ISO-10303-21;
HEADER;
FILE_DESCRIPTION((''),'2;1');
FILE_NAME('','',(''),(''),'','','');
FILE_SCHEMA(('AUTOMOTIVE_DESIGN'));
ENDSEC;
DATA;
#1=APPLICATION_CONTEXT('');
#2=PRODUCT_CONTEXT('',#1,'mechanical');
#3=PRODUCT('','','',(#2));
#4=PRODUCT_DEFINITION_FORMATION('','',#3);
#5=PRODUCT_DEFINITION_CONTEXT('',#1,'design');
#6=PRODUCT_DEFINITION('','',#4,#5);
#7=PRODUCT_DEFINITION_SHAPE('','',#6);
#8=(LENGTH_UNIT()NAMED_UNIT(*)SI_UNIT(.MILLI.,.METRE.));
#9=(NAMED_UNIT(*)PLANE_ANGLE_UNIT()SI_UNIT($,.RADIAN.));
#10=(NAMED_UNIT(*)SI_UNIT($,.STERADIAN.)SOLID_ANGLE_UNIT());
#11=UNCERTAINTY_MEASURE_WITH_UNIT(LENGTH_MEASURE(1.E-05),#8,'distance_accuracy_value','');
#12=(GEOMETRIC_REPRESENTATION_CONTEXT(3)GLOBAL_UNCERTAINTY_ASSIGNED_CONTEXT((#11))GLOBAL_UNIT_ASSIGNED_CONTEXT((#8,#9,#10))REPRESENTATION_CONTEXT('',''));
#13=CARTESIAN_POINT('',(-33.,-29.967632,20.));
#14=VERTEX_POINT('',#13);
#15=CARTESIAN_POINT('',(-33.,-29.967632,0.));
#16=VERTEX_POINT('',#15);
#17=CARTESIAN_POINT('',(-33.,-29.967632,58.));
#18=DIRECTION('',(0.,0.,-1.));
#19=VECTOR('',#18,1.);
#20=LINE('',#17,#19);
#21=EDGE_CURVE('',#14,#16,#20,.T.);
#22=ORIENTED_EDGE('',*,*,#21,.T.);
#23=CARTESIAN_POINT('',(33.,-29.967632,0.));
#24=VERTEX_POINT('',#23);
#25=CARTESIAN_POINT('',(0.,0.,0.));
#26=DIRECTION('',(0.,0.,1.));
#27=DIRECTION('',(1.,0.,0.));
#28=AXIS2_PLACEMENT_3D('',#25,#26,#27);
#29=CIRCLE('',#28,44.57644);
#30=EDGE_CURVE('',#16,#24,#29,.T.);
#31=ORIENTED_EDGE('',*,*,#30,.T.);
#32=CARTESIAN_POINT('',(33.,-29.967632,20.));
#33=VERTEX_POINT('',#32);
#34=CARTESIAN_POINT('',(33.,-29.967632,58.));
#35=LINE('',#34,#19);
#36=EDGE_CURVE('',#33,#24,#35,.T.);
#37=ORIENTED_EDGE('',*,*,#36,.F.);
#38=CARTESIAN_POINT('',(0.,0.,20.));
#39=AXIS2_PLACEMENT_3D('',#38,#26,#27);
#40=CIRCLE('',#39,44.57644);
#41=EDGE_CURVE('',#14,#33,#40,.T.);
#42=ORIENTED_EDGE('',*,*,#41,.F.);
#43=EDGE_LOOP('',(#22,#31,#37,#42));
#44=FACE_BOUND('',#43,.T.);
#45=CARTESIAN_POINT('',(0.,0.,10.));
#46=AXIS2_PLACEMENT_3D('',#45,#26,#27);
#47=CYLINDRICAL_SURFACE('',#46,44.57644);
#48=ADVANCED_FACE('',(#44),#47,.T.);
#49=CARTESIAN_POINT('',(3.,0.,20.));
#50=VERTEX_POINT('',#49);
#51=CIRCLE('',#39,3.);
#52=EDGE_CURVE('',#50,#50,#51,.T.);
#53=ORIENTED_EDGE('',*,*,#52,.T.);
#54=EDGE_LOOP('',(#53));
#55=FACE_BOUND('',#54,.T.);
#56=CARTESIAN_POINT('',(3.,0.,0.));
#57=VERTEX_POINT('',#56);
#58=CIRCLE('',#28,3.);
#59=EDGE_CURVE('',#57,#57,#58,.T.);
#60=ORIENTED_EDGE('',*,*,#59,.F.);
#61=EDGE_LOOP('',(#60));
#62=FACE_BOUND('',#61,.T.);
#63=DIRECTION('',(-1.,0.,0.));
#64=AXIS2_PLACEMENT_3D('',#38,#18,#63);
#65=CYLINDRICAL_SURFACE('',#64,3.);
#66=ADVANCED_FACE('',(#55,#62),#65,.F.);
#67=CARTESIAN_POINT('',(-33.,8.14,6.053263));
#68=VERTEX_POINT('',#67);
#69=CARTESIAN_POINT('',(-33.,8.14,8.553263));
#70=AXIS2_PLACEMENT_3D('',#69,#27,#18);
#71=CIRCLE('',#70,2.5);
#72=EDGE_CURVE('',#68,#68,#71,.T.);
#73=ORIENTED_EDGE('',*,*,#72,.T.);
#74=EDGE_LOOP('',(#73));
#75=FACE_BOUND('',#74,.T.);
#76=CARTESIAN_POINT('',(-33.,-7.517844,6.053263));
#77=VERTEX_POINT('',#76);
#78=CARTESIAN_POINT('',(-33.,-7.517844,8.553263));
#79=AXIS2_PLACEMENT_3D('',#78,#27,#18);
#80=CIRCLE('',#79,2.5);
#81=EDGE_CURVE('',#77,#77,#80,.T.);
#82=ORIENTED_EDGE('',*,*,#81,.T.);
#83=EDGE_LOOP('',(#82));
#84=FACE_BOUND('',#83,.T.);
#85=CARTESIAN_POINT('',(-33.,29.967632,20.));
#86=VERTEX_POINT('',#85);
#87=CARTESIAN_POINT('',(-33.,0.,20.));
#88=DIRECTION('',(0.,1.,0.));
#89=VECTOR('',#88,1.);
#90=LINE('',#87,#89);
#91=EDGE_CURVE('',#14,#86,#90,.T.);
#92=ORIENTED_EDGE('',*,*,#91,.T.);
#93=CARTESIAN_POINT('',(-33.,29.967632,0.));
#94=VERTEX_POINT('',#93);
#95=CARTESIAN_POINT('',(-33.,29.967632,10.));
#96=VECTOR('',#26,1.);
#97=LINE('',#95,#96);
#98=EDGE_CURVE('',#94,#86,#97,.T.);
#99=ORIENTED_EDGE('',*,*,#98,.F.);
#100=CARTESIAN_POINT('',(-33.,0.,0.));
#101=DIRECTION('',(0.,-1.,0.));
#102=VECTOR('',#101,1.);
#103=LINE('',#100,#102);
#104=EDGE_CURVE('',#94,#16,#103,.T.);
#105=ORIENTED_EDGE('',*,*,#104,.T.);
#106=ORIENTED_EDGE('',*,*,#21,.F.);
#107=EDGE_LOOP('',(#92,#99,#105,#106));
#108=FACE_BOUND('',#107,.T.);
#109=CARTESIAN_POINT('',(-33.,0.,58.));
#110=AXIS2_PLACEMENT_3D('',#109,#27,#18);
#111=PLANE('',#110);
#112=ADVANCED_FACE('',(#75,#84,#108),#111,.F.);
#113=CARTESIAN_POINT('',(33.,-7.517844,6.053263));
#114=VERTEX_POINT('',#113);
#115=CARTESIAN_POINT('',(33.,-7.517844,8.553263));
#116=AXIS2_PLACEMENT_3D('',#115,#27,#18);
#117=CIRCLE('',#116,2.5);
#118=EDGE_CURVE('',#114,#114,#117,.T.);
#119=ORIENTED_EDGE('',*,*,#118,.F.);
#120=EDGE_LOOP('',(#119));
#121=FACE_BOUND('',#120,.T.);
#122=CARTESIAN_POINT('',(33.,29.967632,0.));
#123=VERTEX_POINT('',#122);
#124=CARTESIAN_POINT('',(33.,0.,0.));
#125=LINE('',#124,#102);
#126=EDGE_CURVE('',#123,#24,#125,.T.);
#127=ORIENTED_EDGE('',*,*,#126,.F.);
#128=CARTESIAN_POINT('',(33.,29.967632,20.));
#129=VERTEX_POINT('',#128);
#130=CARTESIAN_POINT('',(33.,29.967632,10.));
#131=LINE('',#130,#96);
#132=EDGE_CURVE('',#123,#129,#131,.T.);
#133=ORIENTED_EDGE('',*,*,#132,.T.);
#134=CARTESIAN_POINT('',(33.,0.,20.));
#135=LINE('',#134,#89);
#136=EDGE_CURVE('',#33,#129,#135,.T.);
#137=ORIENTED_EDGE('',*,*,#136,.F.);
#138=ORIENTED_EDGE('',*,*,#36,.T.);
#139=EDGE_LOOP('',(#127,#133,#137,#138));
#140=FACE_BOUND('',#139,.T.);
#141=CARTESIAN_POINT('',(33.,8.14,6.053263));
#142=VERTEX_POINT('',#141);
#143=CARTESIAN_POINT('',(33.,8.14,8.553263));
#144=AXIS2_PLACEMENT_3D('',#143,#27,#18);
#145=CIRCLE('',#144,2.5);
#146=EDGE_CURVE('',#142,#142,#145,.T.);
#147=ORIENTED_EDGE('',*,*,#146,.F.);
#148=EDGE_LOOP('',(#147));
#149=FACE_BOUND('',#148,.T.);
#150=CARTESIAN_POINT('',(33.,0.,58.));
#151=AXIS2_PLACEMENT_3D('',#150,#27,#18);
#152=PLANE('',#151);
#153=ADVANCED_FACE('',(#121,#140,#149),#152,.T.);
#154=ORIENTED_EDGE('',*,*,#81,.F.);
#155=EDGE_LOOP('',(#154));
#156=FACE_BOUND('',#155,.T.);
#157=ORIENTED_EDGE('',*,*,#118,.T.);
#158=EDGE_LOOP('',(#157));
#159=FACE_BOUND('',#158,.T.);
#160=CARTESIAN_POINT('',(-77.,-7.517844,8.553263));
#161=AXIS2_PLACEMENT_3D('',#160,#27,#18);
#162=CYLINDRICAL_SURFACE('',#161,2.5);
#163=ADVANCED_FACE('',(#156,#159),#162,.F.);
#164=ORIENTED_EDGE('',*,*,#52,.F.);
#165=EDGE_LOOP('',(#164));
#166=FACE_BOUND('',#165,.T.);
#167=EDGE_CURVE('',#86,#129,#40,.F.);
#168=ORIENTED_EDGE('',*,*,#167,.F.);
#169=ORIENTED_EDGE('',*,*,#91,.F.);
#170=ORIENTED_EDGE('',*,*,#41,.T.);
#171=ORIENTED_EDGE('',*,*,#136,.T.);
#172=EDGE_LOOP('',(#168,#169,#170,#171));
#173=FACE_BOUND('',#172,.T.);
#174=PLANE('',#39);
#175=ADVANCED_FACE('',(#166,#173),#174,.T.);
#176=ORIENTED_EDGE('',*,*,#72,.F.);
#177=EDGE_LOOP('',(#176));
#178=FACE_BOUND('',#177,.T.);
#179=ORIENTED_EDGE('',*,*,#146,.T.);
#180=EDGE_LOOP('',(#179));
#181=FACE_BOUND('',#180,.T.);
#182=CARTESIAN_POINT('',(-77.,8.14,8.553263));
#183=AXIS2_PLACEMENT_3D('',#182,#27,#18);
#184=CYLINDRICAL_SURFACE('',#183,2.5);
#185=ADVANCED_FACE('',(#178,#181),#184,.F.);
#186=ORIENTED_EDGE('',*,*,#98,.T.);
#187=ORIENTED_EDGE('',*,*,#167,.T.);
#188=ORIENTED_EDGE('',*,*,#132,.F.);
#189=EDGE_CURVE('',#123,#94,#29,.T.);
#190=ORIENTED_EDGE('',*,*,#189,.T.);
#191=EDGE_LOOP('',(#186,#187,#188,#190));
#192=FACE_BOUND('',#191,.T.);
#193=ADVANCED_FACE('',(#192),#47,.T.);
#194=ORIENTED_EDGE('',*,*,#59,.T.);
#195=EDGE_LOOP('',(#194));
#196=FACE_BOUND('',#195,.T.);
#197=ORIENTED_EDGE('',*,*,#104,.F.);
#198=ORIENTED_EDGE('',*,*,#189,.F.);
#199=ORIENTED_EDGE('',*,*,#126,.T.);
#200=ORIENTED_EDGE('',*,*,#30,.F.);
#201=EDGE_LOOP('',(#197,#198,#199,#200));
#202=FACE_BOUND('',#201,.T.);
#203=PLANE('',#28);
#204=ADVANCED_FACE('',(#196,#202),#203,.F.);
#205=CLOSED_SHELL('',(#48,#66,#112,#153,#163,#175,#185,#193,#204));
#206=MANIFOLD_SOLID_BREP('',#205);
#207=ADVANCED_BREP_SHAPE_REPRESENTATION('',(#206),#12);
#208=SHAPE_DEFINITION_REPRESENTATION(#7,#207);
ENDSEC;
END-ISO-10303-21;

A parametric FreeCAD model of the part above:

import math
import FreeCAD as App
import Part
import Sketcher
from FreeCAD import Vector
Q = App.Units.Quantity

doc = App.newDocument("Part")
body = doc.addObject("PartDesign::Body", "Body")

# Sketch on XY plane
sketch1 = body.newObject("Sketcher::SketchObject", "Sketch")
sketch1.AttachmentSupport = (doc.getObject("XY_Plane"), [""])
sketch1.MapMode = "FlatFace"
sketch1.addGeometry(Part.Circle(Vector(0, 0, 0), Vector(0, 0, 1), 55), False)
sketch1.addGeometry(Part.Circle(Vector(0, 0, 0), Vector(0, 0, 1), 3), False)
sketch1.addConstraint(Sketcher.Constraint("Coincident", 0, 3, -1, 1))
sketch1.addConstraint(Sketcher.Constraint("Coincident", 1, 3, -1, 1))
sketch1.addConstraint(Sketcher.Constraint("Diameter", 0, Q("110 mm")))
sketch1.addConstraint(Sketcher.Constraint("Diameter", 1, Q("6 mm")))
pad1 = body.newObject("PartDesign::Pad", "Pad")
pad1.Profile = sketch1
pad1.Length = 20

# Sketch on XY plane
sketch2 = body.newObject("Sketcher::SketchObject", "Sketch001")
sketch2.AttachmentSupport = (doc.getObject("XY_Plane"), [""])
sketch2.MapMode = "FlatFace"
sketch2.AttachmentOffset = App.Placement(Vector(0, 0, 20), App.Rotation())
sketch2.addGeometry(Part.Circle(Vector(0, 0, 0), Vector(0, 0, 1), 52), False)
sketch2.addGeometry(Part.LineSegment(Vector(-41, -17, 0), Vector(-41, 17, 0)), False)
sketch2.addGeometry(Part.ArcOfCircle(Part.Circle(Vector(0, 0, 0), Vector(0, 0, 1), 45), math.radians(22), math.radians(158)), False)
sketch2.addGeometry(Part.LineSegment(Vector(41, 17, 0), Vector(41, -17, 0)), False)
sketch2.addGeometry(Part.ArcOfCircle(Part.Circle(Vector(0, 0, 0), Vector(0, 0, 1), 45), math.radians(-158), math.radians(-22)), False)
sketch2.addConstraint(Sketcher.Constraint("Coincident", 1, 2, 2, 2))
sketch2.addConstraint(Sketcher.Constraint("Coincident", 2, 1, 3, 1))
sketch2.addConstraint(Sketcher.Constraint("Coincident", 3, 2, 4, 2))
sketch2.addConstraint(Sketcher.Constraint("Coincident", 4, 1, 1, 1))
sketch2.addConstraint(Sketcher.Constraint("Vertical", 1))
sketch2.addConstraint(Sketcher.Constraint("Vertical", 3))
sketch2.addConstraint(Sketcher.Constraint("Coincident", 0, 3, -1, 1))
sketch2.addConstraint(Sketcher.Constraint("Coincident", 2, 3, -1, 1))
sketch2.addConstraint(Sketcher.Constraint("Coincident", 4, 3, -1, 1))
sketch2.addConstraint(Sketcher.Constraint("Equal", 2, 4))
sketch2.addConstraint(Sketcher.Constraint("Horizontal", 1, 2, 2, 1))
sketch2.addConstraint(Sketcher.Constraint("Diameter", 0, Q("104 mm")))
sketch2.addConstraint(Sketcher.Constraint("Radius", 2, Q("44.57644 mm")))
sketch2.addConstraint(Sketcher.Constraint("DistanceX", 1, 2, 2, 1, Q("82.7239 mm")))
pocket1 = body.newObject("PartDesign::Pocket", "Pocket")
pocket1.Profile = sketch2
pocket1.Length = 10

# Sketch on XY plane
sketch3 = body.newObject("Sketcher::SketchObject", "Sketch002")
sketch3.AttachmentSupport = (doc.getObject("XY_Plane"), [""])
sketch3.MapMode = "FlatFace"
sketch3.AttachmentOffset = App.Placement(Vector(0, 0, 20), App.Rotation())
sketch3.addGeometry(Part.Circle(Vector(0, 0, 0), Vector(0, 0, 1), 74), False)
sketch3.addGeometry(Part.LineSegment(Vector(-41, -17, 0), Vector(-41, 17, 0)), False)
sketch3.addGeometry(Part.ArcOfCircle(Part.Circle(Vector(0, 0, 0), Vector(0, 0, 1), 45), math.radians(22), math.radians(158)), False)
sketch3.addGeometry(Part.LineSegment(Vector(41, 17, 0), Vector(41, -17, 0)), False)
sketch3.addGeometry(Part.ArcOfCircle(Part.Circle(Vector(0, 0, 0), Vector(0, 0, 1), 45), math.radians(-158), math.radians(-22)), False)
sketch3.addConstraint(Sketcher.Constraint("Coincident", 1, 2, 2, 2))
sketch3.addConstraint(Sketcher.Constraint("Coincident", 2, 1, 3, 1))
sketch3.addConstraint(Sketcher.Constraint("Coincident", 3, 2, 4, 2))
sketch3.addConstraint(Sketcher.Constraint("Coincident", 4, 1, 1, 1))
sketch3.addConstraint(Sketcher.Constraint("Vertical", 1))
sketch3.addConstraint(Sketcher.Constraint("Vertical", 3))
sketch3.addConstraint(Sketcher.Constraint("Coincident", 0, 3, -1, 1))
sketch3.addConstraint(Sketcher.Constraint("Coincident", 2, 3, -1, 1))
sketch3.addConstraint(Sketcher.Constraint("Coincident", 4, 3, -1, 1))
sketch3.addConstraint(Sketcher.Constraint("Equal", 2, 4))
sketch3.addConstraint(Sketcher.Constraint("Horizontal", 1, 2, 2, 1))
sketch3.addConstraint(Sketcher.Constraint("Radius", 2, Q("44.57644 mm")))
sketch3.addConstraint(Sketcher.Constraint("Diameter", 0, Q("147.290286 mm")))
sketch3.addConstraint(Sketcher.Constraint("DistanceX", 1, 2, 2, 1, Q("82.7239 mm")))
pocket2 = body.newObject("PartDesign::Pocket", "Pocket001")
pocket2.Profile = sketch3
pocket2.Length = 40

# Sketch on XY plane
sketch4 = body.newObject("Sketcher::SketchObject", "Sketch003")
sketch4.AttachmentSupport = (doc.getObject("XY_Plane"), [""])
sketch4.MapMode = "FlatFace"
sketch4.AttachmentOffset = App.Placement(Vector(0, 0, 58), App.Rotation())
sketch4.addGeometry(Part.LineSegment(Vector(33, 30, 0), Vector(59, 18, 0)), False)
sketch4.addGeometry(Part.LineSegment(Vector(59, 18, 0), Vector(59, -19, 0)), False)
sketch4.addGeometry(Part.LineSegment(Vector(59, -19, 0), Vector(33, -30, 0)), False)
sketch4.addGeometry(Part.LineSegment(Vector(33, -30, 0), Vector(33, 30, 0)), False)
sketch4.addGeometry(Part.LineSegment(Vector(-59, 27, 0), Vector(-33, 30, 0)), False)
sketch4.addGeometry(Part.LineSegment(Vector(-33, 30, 0), Vector(-33, -30, 0)), False)
sketch4.addGeometry(Part.LineSegment(Vector(-33, -30, 0), Vector(-59, -14, 0)), False)
sketch4.addGeometry(Part.LineSegment(Vector(-59, -14, 0), Vector(-59, 27, 0)), False)
sketch4.addConstraint(Sketcher.Constraint("Coincident", 0, 2, 1, 1))
sketch4.addConstraint(Sketcher.Constraint("Coincident", 1, 2, 2, 1))
sketch4.addConstraint(Sketcher.Constraint("Coincident", 2, 2, 3, 1))
sketch4.addConstraint(Sketcher.Constraint("Coincident", 3, 2, 0, 1))
sketch4.addConstraint(Sketcher.Constraint("Coincident", 4, 2, 5, 1))
sketch4.addConstraint(Sketcher.Constraint("Coincident", 5, 2, 6, 1))
sketch4.addConstraint(Sketcher.Constraint("Coincident", 6, 2, 7, 1))
sketch4.addConstraint(Sketcher.Constraint("Coincident", 7, 2, 4, 1))
sketch4.addConstraint(Sketcher.Constraint("Vertical", 1))
sketch4.addConstraint(Sketcher.Constraint("Vertical", 3))
sketch4.addConstraint(Sketcher.Constraint("Vertical", 5))
sketch4.addConstraint(Sketcher.Constraint("Vertical", 7))
sketch4.addConstraint(Sketcher.Constraint("Symmetric", 2, 2, 4, 2, -1, 1))
sketch4.addConstraint(Sketcher.Constraint("Horizontal", 3, 2, 4, 2))
sketch4.addConstraint(Sketcher.Constraint("Horizontal", 2, 2, 5, 2))
sketch4.addConstraint(Sketcher.Constraint("DistanceX", -1, 1, 2, 2, Q("33 mm")))
sketch4.addConstraint(Sketcher.Constraint("DistanceY", 2, 2, 1, 2, Q("10.5798 mm")))
sketch4.addConstraint(Sketcher.Constraint("Distance", 2, Q("27.769481 mm")))
sketch4.addConstraint(Sketcher.Constraint("DistanceY", 1, 2, 1, 1, Q("37.392995 mm")))
sketch4.addConstraint(Sketcher.Constraint("DistanceY", 3, 1, 3, 2, Q("59.935265 mm")))
sketch4.addConstraint(Sketcher.Constraint("DistanceY", 7, 1, 7, 2, Q("41.106683 mm")))
sketch4.addConstraint(Sketcher.Constraint("DistanceX", 6, 2, -1, 1, Q("59.443471 mm")))
sketch4.addConstraint(Sketcher.Constraint("DistanceY", -1, 1, 7, 2, Q("26.815208 mm")))
pocket3 = body.newObject("PartDesign::Pocket", "Pocket002")
pocket3.Profile = sketch4
pocket3.Length = 58

# Sketch on YZ plane
sketch5 = body.newObject("Sketcher::SketchObject", "Sketch004")
sketch5.AttachmentSupport = (doc.getObject("YZ_Plane"), [""])
sketch5.MapMode = "FlatFace"
sketch5.AttachmentOffset = App.Placement(Vector(0, 0, 33), App.Rotation())
sketch5.addGeometry(Part.Circle(Vector(-7.5, 8.6, 0), Vector(0, 0, 1), 2.5), False)
sketch5.addGeometry(Part.Circle(Vector(8.1, 8.6, 0), Vector(0, 0, 1), 2.5), False)
sketch5.addConstraint(Sketcher.Constraint("Equal", 0, 1))
sketch5.addConstraint(Sketcher.Constraint("Horizontal", 0, 3, 1, 3))
sketch5.addConstraint(Sketcher.Constraint("Diameter", 0, Q("5 mm")))
sketch5.addConstraint(Sketcher.Constraint("DistanceX", -1, 1, 1, 3, Q("8.14 mm")))
sketch5.addConstraint(Sketcher.Constraint("DistanceX", 0, 3, -1, 1, Q("7.517844 mm")))
sketch5.addConstraint(Sketcher.Constraint("DistanceY", -1, 1, 0, 3, Q("8.553263 mm")))
pocket4 = body.newObject("PartDesign::Pocket", "Pocket003")
pocket4.Profile = sketch5
pocket4.Length = 110

doc.recompute()
